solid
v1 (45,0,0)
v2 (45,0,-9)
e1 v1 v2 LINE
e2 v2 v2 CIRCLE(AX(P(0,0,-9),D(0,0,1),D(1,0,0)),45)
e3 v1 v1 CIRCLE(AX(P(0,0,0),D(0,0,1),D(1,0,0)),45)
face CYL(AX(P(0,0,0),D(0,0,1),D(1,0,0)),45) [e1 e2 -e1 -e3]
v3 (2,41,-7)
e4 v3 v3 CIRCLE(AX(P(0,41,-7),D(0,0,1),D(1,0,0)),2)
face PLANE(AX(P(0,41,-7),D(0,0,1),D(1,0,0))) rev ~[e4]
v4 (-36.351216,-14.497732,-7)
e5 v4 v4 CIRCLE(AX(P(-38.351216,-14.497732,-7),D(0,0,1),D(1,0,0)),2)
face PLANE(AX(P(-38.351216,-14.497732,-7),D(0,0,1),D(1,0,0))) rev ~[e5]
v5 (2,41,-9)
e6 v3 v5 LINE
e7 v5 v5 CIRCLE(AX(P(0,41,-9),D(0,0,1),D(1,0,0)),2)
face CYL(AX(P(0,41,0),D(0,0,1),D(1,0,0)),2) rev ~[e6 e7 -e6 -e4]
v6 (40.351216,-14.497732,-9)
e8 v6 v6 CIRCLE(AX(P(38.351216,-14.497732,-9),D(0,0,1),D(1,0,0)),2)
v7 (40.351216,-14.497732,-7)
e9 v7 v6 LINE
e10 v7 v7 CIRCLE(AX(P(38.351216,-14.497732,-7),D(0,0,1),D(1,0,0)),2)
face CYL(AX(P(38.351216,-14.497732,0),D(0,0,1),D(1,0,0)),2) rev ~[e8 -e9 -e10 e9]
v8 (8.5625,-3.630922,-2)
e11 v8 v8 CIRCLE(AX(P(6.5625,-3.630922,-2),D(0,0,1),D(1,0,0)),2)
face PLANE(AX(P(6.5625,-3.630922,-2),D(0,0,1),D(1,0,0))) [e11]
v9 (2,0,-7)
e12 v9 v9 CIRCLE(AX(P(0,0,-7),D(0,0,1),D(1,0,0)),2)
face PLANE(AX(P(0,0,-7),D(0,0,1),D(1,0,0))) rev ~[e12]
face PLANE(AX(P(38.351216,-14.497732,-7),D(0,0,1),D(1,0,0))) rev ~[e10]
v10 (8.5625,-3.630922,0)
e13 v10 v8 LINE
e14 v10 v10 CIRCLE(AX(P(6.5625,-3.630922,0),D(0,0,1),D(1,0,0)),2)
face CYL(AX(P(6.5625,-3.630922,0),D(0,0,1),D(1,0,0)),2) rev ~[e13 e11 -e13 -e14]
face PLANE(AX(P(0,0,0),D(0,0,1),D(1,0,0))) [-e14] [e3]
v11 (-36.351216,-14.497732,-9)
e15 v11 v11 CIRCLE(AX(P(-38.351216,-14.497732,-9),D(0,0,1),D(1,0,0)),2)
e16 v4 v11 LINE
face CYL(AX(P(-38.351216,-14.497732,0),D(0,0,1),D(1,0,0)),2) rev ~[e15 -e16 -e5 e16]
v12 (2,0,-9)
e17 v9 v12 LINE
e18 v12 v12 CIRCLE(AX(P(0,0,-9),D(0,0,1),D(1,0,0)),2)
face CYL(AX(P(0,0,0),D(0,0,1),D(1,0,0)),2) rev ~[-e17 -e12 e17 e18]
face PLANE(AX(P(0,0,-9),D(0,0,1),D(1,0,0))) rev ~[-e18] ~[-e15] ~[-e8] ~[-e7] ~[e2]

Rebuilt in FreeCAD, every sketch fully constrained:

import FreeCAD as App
import Part
import Sketcher

doc = App.newDocument("Part")
body = doc.addObject("PartDesign::Body", "Body")

sketch1 = body.newObject("Sketcher::SketchObject", "Sketch")
sketch1.AttachmentSupport = (doc.getObject("XY_Plane"), [""])
sketch1.MapMode = "FlatFace"
sketch1.addGeometry(Part.Circle(App.Vector(0, 0, 0), App.Vector(0, 0, 1), 45), False)
sketch1.addGeometry(Part.Circle(App.Vector(-38.351216, -14.497732, 0), App.Vector(0, 0, 1), 2), False)
sketch1.addGeometry(Part.Circle(App.Vector(38.351216, -14.497732, 0), App.Vector(0, 0, 1), 2), False)
sketch1.addGeometry(Part.Circle(App.Vector(0, 0, 0), App.Vector(0, 0, 1), 2), False)
sketch1.addGeometry(Part.Circle(App.Vector(0, 41, 0), App.Vector(0, 0, 1), 2), False)
sketch1.addConstraint(Sketcher.Constraint("Coincident", 0, 3, -1, 1))
sketch1.addConstraint(Sketcher.Constraint("Coincident", 3, 3, -1, 1))
sketch1.addConstraint(Sketcher.Constraint("Equal", 1, 2))
sketch1.addConstraint(Sketcher.Constraint("Equal", 2, 3))
sketch1.addConstraint(Sketcher.Constraint("Equal", 3, 4))
sketch1.addConstraint(Sketcher.Constraint("Symmetric", 1, 3, 2, 3, -2))
sketch1.addConstraint(Sketcher.Constraint("PointOnObject", 4, 3, -2))
sketch1.addConstraint(Sketcher.Constraint("Diameter", 0, 90.0))
sketch1.addConstraint(Sketcher.Constraint("Diameter", 1, 4.0))
sketch1.addConstraint(Sketcher.Constraint("DistanceY", -1, 1, 4, 3, 41.0))
sketch1.addConstraint(Sketcher.Constraint("DistanceY", 1, 3, -1, 1, 14.497732))
sketch1.addConstraint(Sketcher.Constraint("DistanceX", 1, 3, 2, 3, 76.702432))
pad1 = body.newObject("PartDesign::Pad", "Pad")
pad1.Profile = sketch1
pad1.Length = 9
pad1.Reversed = True

sketch2 = body.newObject("Sketcher::SketchObject", "Sketch001")
sketch2.AttachmentSupport = (doc.getObject("XY_Plane"), [""])
sketch2.MapMode = "FlatFace"
sketch2.addGeometry(Part.Circle(App.Vector(0, 0, 0), App.Vector(0, 0, 1), 2), False)
sketch2.addGeometry(Part.Circle(App.Vector(0, 41, 0), App.Vector(0, 0, 1), 2), False)
sketch2.addGeometry(Part.Circle(App.Vector(38.351216, -14.497732, 0), App.Vector(0, 0, 1), 2), False)
sketch2.addGeometry(Part.Circle(App.Vector(-38.351216, -14.497732, 0), App.Vector(0, 0, 1), 2), False)
sketch2.addConstraint(Sketcher.Constraint("Coincident", 0, 3, -1, 1))
sketch2.addConstraint(Sketcher.Constraint("Equal", 0, 1))
sketch2.addConstraint(Sketcher.Constraint("Equal", 1, 2))
sketch2.addConstraint(Sketcher.Constraint("Equal", 2, 3))
sketch2.addConstraint(Sketcher.Constraint("Symmetric", 2, 3, 3, 3, -2))
sketch2.addConstraint(Sketcher.Constraint("PointOnObject", 1, 3, -2))
sketch2.addConstraint(Sketcher.Constraint("Diameter", 0, 4.0))
sketch2.addConstraint(Sketcher.Constraint("DistanceY", -1, 1, 1, 3, 41.0))
sketch2.addConstraint(Sketcher.Constraint("DistanceY", 2, 3, -1, 1, 14.497732))
sketch2.addConstraint(Sketcher.Constraint("DistanceX", 3, 3, 2, 3, 76.702432))
pad2 = body.newObject("PartDesign::Pad", "Pad001")
pad2.Profile = sketch2
pad2.Length = 7
pad2.Reversed = True

sketch3 = body.newObject("Sketcher::SketchObject", "Sketch002")
sketch3.AttachmentSupport = (doc.getObject("XY_Plane"), [""])
sketch3.MapMode = "FlatFace"
sketch3.addGeometry(Part.Circle(App.Vector(6.5625, -3.630922, 0), App.Vector(0, 0, 1), 2), False)
sketch3.addConstraint(Sketcher.Constraint("Diameter", 0, 4.0))
sketch3.addConstraint(Sketcher.Constraint("DistanceX", -1, 1, 0, 3, 6.5625))
sketch3.addConstraint(Sketcher.Constraint("DistanceY", 0, 3, -1, 1, 3.630922))
pocket1 = body.newObject("PartDesign::Pocket", "Pocket")
pocket1.Profile = sketch3
pocket1.Length = 2

doc.recompute()
